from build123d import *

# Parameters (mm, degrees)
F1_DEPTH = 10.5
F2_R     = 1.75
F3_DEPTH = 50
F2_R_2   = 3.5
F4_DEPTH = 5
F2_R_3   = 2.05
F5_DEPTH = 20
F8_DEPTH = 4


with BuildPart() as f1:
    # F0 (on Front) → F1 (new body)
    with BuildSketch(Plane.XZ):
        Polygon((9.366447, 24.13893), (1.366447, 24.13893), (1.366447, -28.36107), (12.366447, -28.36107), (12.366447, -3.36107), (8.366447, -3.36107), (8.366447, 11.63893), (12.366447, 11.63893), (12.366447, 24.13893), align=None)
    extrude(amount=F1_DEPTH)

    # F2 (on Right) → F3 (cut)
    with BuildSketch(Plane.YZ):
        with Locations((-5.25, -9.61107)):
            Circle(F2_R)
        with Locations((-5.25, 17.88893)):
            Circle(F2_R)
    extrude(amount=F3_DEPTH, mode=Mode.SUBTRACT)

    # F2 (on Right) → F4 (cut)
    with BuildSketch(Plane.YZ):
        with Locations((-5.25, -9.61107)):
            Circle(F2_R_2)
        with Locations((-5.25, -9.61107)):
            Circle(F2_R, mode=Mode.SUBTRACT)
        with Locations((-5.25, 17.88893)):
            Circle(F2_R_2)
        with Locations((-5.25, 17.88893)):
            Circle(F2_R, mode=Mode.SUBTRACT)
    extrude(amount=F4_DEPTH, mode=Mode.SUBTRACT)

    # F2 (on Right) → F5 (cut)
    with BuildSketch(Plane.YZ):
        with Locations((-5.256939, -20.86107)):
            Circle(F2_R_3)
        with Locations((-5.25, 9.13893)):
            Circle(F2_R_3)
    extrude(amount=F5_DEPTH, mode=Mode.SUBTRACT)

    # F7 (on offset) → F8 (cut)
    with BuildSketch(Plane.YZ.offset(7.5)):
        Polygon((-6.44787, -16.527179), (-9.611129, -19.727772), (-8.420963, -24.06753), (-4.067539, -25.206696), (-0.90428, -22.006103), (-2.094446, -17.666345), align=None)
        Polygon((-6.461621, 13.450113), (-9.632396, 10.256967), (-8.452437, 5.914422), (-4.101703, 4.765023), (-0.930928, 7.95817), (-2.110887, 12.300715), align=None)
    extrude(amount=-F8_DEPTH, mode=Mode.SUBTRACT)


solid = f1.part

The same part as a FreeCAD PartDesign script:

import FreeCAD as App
import Part
import Sketcher

V = App.Vector
Q = App.Units.Quantity


def add_polygon(sketch, points):
    """Adds a closed chain of lines whose ends are joined by coincident constraints."""
    first, n = sketch.GeometryCount, len(points)
    for a, b in zip(points, points[1:] + points[:1]):
        sketch.addGeometry(Part.LineSegment(App.Vector(*a, 0), App.Vector(*b, 0)), False)
    for i in range(n):
        sketch.addConstraint(Sketcher.Constraint("Coincident", first + i, 2, first + (i + 1) % n, 1))

doc = App.newDocument("Part")
body = doc.addObject("PartDesign::Body", "Body")

# Sketch on XZ plane
sketch1 = doc.addObject("Sketcher::SketchObject", "Sketch")
body.addObject(sketch1)
sketch1.AttachmentSupport = (doc.XZ_Plane, [""])
sketch1.MapMode = "FlatFace"
add_polygon(sketch1, [(1.4, 24.1), (1.4, -28.4), (12.4, -28.4), (12.4, -3.4), (8.4, -3.4), (8.4, 11.6), (12.4, 11.6), (12.4, 24.1)])  # lines 0-7
sketch1.addConstraint(Sketcher.Constraint("Vertical", 0))
sketch1.addConstraint(Sketcher.Constraint("Horizontal", 1))
sketch1.addConstraint(Sketcher.Constraint("Vertical", 2))
sketch1.addConstraint(Sketcher.Constraint("Horizontal", 3))
sketch1.addConstraint(Sketcher.Constraint("Vertical", 4))
sketch1.addConstraint(Sketcher.Constraint("Horizontal", 5))
sketch1.addConstraint(Sketcher.Constraint("Vertical", 6))
sketch1.addConstraint(Sketcher.Constraint("Horizontal", 7))
sketch1.addConstraint(Sketcher.Constraint("Vertical", 2, 2, 5, 2))
sketch1.addConstraint(Sketcher.Constraint("DistanceX", 1, 1, 1, 2, Q("11 mm")))
sketch1.addConstraint(Sketcher.Constraint("DistanceX", 3, 2, 3, 1, Q("4 mm")))
sketch1.addConstraint(Sketcher.Constraint("DistanceY", 2, 1, 2, 2, Q("25 mm")))
sketch1.addConstraint(Sketcher.Constraint("DistanceY", 4, 1, 4, 2, Q("15 mm")))
sketch1.addConstraint(Sketcher.Constraint("DistanceY", 0, 2, 0, 1, Q("52.5 mm")))
sketch1.addConstraint(Sketcher.Constraint("DistanceY", 0, 2, -1, 1, Q("28.36107 mm")))
sketch1.addConstraint(Sketcher.Constraint("DistanceX", -1, 1, 0, 2, Q("1.366447 mm")))
pad1 = doc.addObject("PartDesign::Pad", "Pad")
body.addObject(pad1)
pad1.Profile = sketch1
pad1.Length = 10.5

# Sketch on YZ plane
sketch2 = doc.addObject("Sketcher::SketchObject", "Sketch001")
body.addObject(sketch2)
sketch2.AttachmentSupport = (doc.YZ_Plane, [""])
sketch2.MapMode = "FlatFace"
sketch2.addGeometry(Part.Circle(V(-5.2, -9.6, 0), V(0, 0, 1), 1.8), False)
sketch2.addGeometry(Part.Circle(V(-5.2, 17.9, 0), V(0, 0, 1), 1.8), False)
sketch2.addConstraint(Sketcher.Constraint("Equal", 0, 1))
sketch2.addConstraint(Sketcher.Constraint("Vertical", 0, 3, 1, 3))
sketch2.addConstraint(Sketcher.Constraint("Diameter", 0, Q("3.5 mm")))
sketch2.addConstraint(Sketcher.Constraint("DistanceY", 0, 3, 1, 3, Q("27.5 mm")))
sketch2.addConstraint(Sketcher.Constraint("DistanceX", 0, 3, -1, 1, Q("5.25 mm")))
sketch2.addConstraint(Sketcher.Constraint("DistanceY", 0, 3, -1, 1, Q("9.61107 mm")))
pocket1 = doc.addObject("PartDesign::Pocket", "Pocket")
body.addObject(pocket1)
pocket1.Profile = sketch2
pocket1.Length = 50
pocket1.Reversed = True

# Sketch on YZ plane
sketch3 = doc.addObject("Sketcher::SketchObject", "Sketch002")
body.addObject(sketch3)
sketch3.AttachmentSupport = (doc.YZ_Plane, [""])
sketch3.MapMode = "FlatFace"
sketch3.addGeometry(Part.Circle(V(-5.2, -9.6, 0), V(0, 0, 1), 3.5), False)
sketch3.addGeometry(Part.Circle(V(-5.2, -9.6, 0), V(0, 0, 1), 1.8), False)
sketch3.addGeometry(Part.Circle(V(-5.2, 17.9, 0), V(0, 0, 1), 3.5), False)
sketch3.addGeometry(Part.Circle(V(-5.2, 17.9, 0), V(0, 0, 1), 1.8), False)
sketch3.addConstraint(Sketcher.Constraint("Coincident", 1, 3, 0, 3))
sketch3.addConstraint(Sketcher.Constraint("Coincident", 3, 3, 2, 3))
sketch3.addConstraint(Sketcher.Constraint("Equal", 0, 2))
sketch3.addConstraint(Sketcher.Constraint("Equal", 1, 3))
sketch3.addConstraint(Sketcher.Constraint("Vertical", 1, 3, 2, 3))
sketch3.addConstraint(Sketcher.Constraint("Diameter", 0, Q("7 mm")))
sketch3.addConstraint(Sketcher.Constraint("Diameter", 1, Q("3.5 mm")))
sketch3.addConstraint(Sketcher.Constraint("DistanceY", 0, 3, 2, 3, Q("27.5 mm")))
sketch3.addConstraint(Sketcher.Constraint("DistanceX", 0, 3, -1, 1, Q("5.25 mm")))
sketch3.addConstraint(Sketcher.Constraint("DistanceY", 0, 3, -1, 1, Q("9.61107 mm")))
pocket2 = doc.addObject("PartDesign::Pocket", "Pocket001")
body.addObject(pocket2)
pocket2.Profile = sketch3
pocket2.Length = 5
pocket2.Reversed = True

# Sketch on YZ plane
sketch4 = doc.addObject("Sketcher::SketchObject", "Sketch003")
body.addObject(sketch4)
sketch4.AttachmentSupport = (doc.YZ_Plane, [""])
sketch4.MapMode = "FlatFace"
sketch4.addGeometry(Part.Circle(V(-5.3, -20.9, 0), V(0, 0, 1), 2), False)
sketch4.addGeometry(Part.Circle(V(-5.2, 9.1, 0), V(0, 0, 1), 2), False)
sketch4.addConstraint(Sketcher.Constraint("Equal", 0, 1))
sketch4.addConstraint(Sketcher.Constraint("Diameter", 0, Q("4.1 mm")))
sketch4.addConstraint(Sketcher.Constraint("DistanceY", 0, 3, 1, 3, Q("30 mm")))
sketch4.addConstraint(Sketcher.Constraint("DistanceX", 1, 3, -1, 1, Q("5.25 mm")))
sketch4.addConstraint(Sketcher.Constraint("DistanceX", 0, 3, -1, 1, Q("5.256939 mm")))
sketch4.addConstraint(Sketcher.Constraint("DistanceY", 0, 3, -1, 1, Q("20.86107 mm")))
pocket3 = doc.addObject("PartDesign::Pocket", "Pocket002")
body.addObject(pocket3)
pocket3.Profile = sketch4
pocket3.Length = 20
pocket3.Reversed = True

# Sketch on YZ plane
sketch5 = doc.addObject("Sketcher::SketchObject", "Sketch004")
body.addObject(sketch5)
sketch5.AttachmentSupport = (doc.YZ_Plane, [""])
sketch5.MapMode = "FlatFace"
sketch5.AttachmentOffset = App.Placement(V(0, 0, 7.5), App.Rotation())
add_polygon(sketch5, [(-6.4, -16.5), (-9.6, -19.7), (-8.4, -24.1), (-4.1, -25.2), (-0.9, -22), (-2.1, -17.7)])  # lines 0-5
add_polygon(sketch5, [(-6.5, 13.5), (-9.6, 10.3), (-8.5, 5.9), (-4.1, 4.8), (-0.9, 8), (-2.1, 12.3)])  # lines 6-11
sketch5.addConstraint(Sketcher.Constraint("Parallel", 0, 3))
sketch5.addConstraint(Sketcher.Constraint("Parallel", 1, 4))
sketch5.addConstraint(Sketcher.Constraint("Parallel", 2, 5))
sketch5.addConstraint(Sketcher.Constraint("Parallel", 6, 9))
sketch5.addConstraint(Sketcher.Constraint("Parallel", 7, 10))
sketch5.addConstraint(Sketcher.Constraint("Parallel", 8, 11))
sketch5.addConstraint(Sketcher.Constraint("Equal", 0, 1))
sketch5.addConstraint(Sketcher.Constraint("Equal", 1, 2))
sketch5.addConstraint(Sketcher.Constraint("Equal", 2, 3))
sketch5.addConstraint(Sketcher.Constraint("Equal", 5, 6))
sketch5.addConstraint(Sketcher.Constraint("Equal", 6, 7))
sketch5.addConstraint(Sketcher.Constraint("Equal", 7, 8))
sketch5.addConstraint(Sketcher.Constraint("Equal", 8, 9))
sketch5.addConstraint(Sketcher.Constraint("Distance", 0, Q("4.5 mm")))
sketch5.addConstraint(Sketcher.Constraint("DistanceY", 5, 2, 7, 2, Q("22.441601 mm")))
sketch5.addConstraint(Sketcher.Constraint("DistanceY", 8, 2, 7, 2, Q("1.149399 mm")))
sketch5.addConstraint(Sketcher.Constraint("DistanceX", 0, 2, -1, 1, Q("9.611129 mm")))
sketch5.addConstraint(Sketcher.Constraint("DistanceY", 1, 2, -1, 1, Q("24.06753 mm")))
sketch5.addConstraint(Sketcher.Constraint("DistanceX", 2, 2, -1, 1, Q("4.067539 mm")))
sketch5.addConstraint(Sketcher.Constraint("DistanceX", 3, 2, -1, 1, Q("0.90428 mm")))
sketch5.addConstraint(Sketcher.Constraint("DistanceY", 5, 2, -1, 1, Q("16.527179 mm")))
sketch5.addConstraint(Sketcher.Constraint("DistanceY", -1, 1, 9, 2, Q("7.95817 mm")))
sketch5.addConstraint(Sketcher.Constraint("DistanceX", 11, 2, -1, 1, Q("6.461621 mm")))
sketch5.addConstraint(Sketcher.Constraint("DistanceY", 4, 2, 6, 2, Q("27.923312 mm")))
pocket4 = doc.addObject("PartDesign::Pocket", "Pocket003")
body.addObject(pocket4)
pocket4.Profile = sketch5
pocket4.Length = 4

doc.recompute()
